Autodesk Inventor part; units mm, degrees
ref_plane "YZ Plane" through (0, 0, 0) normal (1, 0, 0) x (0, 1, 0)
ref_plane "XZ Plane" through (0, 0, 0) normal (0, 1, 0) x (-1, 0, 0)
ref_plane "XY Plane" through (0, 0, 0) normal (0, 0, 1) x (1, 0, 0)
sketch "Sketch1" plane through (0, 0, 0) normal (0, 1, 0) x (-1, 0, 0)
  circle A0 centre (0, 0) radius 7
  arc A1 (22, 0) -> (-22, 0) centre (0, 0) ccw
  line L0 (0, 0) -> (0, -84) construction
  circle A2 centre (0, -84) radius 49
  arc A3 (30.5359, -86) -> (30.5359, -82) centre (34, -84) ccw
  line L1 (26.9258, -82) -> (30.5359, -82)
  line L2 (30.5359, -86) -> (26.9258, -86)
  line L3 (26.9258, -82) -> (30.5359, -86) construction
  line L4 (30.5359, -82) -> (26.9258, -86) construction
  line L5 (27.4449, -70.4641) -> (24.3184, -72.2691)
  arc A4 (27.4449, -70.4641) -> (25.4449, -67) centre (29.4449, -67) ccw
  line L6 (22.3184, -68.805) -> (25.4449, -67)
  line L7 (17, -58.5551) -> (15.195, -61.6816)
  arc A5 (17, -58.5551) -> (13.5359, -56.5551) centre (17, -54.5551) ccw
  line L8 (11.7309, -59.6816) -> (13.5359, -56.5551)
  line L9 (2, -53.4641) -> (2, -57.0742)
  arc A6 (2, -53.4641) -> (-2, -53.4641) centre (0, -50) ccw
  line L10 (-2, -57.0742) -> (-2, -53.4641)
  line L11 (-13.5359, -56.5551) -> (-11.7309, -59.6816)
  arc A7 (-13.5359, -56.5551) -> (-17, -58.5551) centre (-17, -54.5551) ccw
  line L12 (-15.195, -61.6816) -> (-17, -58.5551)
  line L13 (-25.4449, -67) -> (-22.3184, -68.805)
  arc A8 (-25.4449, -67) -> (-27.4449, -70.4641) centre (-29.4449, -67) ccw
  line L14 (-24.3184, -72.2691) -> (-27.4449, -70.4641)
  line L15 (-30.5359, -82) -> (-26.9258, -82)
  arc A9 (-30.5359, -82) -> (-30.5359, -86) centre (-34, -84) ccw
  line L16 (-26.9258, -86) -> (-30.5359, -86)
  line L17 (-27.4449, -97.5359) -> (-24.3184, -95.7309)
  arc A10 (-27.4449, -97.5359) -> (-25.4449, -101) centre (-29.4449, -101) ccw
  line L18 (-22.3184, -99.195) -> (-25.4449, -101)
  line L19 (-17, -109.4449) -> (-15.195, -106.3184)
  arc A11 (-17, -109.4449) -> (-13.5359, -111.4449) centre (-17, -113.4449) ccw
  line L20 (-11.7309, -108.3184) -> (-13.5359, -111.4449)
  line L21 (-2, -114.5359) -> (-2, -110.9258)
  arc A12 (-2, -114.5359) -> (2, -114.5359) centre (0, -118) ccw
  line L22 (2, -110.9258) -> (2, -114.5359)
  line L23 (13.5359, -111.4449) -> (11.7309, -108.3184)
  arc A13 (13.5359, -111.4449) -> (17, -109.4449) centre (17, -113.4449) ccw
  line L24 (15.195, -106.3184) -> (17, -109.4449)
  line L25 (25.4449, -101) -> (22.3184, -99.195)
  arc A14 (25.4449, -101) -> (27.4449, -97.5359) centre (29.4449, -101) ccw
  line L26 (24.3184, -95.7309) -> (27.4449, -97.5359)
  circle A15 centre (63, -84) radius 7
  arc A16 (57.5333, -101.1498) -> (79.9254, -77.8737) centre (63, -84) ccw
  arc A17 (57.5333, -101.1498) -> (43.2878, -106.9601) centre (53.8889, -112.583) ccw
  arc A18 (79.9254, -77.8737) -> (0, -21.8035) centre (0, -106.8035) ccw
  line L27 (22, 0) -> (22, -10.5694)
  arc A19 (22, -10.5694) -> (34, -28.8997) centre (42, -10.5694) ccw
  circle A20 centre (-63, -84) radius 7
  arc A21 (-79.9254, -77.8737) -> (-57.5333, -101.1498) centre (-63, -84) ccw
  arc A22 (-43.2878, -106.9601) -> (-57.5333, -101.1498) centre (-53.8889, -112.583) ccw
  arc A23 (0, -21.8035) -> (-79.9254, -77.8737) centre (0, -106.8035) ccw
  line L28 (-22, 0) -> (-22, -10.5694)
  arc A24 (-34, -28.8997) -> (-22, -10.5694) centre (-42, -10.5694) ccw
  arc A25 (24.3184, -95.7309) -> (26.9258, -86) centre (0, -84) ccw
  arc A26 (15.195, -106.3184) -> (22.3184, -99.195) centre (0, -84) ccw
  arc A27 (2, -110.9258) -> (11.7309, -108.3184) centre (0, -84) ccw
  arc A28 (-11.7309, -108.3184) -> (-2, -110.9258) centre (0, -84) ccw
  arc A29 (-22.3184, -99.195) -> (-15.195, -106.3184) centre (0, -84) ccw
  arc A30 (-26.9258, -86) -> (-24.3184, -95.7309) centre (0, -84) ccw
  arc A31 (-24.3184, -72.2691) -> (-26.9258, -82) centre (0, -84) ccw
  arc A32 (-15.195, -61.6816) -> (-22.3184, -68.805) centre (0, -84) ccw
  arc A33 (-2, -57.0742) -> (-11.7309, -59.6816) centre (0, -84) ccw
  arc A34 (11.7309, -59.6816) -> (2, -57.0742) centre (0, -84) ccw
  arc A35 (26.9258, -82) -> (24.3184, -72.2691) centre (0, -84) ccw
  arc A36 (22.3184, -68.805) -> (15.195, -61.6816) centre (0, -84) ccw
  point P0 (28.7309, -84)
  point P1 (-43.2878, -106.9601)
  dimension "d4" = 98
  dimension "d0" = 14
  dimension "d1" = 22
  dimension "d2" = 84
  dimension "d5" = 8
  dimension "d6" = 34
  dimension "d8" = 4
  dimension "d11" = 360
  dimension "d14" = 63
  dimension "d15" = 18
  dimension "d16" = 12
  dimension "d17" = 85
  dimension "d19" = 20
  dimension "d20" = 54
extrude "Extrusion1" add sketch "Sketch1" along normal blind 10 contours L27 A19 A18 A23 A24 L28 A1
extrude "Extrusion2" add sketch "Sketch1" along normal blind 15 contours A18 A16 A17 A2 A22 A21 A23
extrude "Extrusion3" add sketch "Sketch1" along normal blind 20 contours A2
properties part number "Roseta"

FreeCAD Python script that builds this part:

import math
import FreeCAD as App
import Part
import Sketcher
from FreeCAD import Vector
Q = App.Units.Quantity

doc = App.newDocument("Part")
body = doc.addObject("PartDesign::Body", "Body")

sketch1 = body.newObject("Sketcher::SketchObject", "Sketch")
sketch1.AttachmentSupport = (doc.getObject("XZ_Plane"), [""])
sketch1.MapMode = "FlatFace"
sketch1.addGeometry([
    Part.LineSegment(Vector(-22, -11, 0), Vector(-22, 0, 0)),
    Part.ArcOfCircle(Part.Circle(Vector(0, 0, 0), Vector(0, 0, 1), 22), math.radians(0), math.radians(180)),
    Part.LineSegment(Vector(22, 0, 0), Vector(22, -11, 0)),
    Part.ArcOfCircle(Part.Circle(Vector(42, -11, 0), Vector(0, 0, 1), 20), math.radians(180), math.radians(246)),
    Part.ArcOfCircle(Part.Circle(Vector(0, -107, 0), Vector(0, 0, 1), 85), math.radians(66), math.radians(90)),
    Part.ArcOfCircle(Part.Circle(Vector(0, -107, 0), Vector(0, 0, 1), 85), math.radians(90), math.radians(114)),
    Part.ArcOfCircle(Part.Circle(Vector(-42, -11, 0), Vector(0, 0, 1), 20), math.radians(-66), math.radians(0)),
    Part.Circle(Vector(0, 0, 0), Vector(0, 0, 1), 7),
], False)
sketch1.addConstraint([
    Sketcher.Constraint("Tangent", 0, 2, 1, 2),
    Sketcher.Constraint("Tangent", 1, 1, 2, 1),
    Sketcher.Constraint("Tangent", 2, 2, 3, 1),
    Sketcher.Constraint("Tangent", 3, 2, 4, 1),
    Sketcher.Constraint("Tangent", 4, 2, 5, 1),
    Sketcher.Constraint("Tangent", 5, 2, 6, 1),
    Sketcher.Constraint("Tangent", 6, 2, 0, 1),
    Sketcher.Constraint("Vertical", 0),
    Sketcher.Constraint("Vertical", 2),
    Sketcher.Constraint("Coincident", 1, 3, -1, 1),
    Sketcher.Constraint("Coincident", 7, 3, -1, 1),
    Sketcher.Constraint("Equal", 4, 5),
    Sketcher.Constraint("Equal", 3, 6),
    Sketcher.Constraint("PointOnObject", 4, 3, -2),
    Sketcher.Constraint("PointOnObject", 4, 2, -2),
    Sketcher.Constraint("Diameter", 7, 14.0),
    Sketcher.Constraint("Radius", 1, 22.0),
    Sketcher.Constraint("Radius", 3, 20.0),
    Sketcher.Constraint("Radius", 4, 85.0),
    Sketcher.Constraint("DistanceY", 0, 1, 0, 2, 10.5694),
])
pad1 = body.newObject("PartDesign::Pad", "Pad")
pad1.Profile = sketch1
pad1.Length = 10
pad1.Reversed = True

sketch2 = body.newObject("Sketcher::SketchObject", "Sketch001")
sketch2.AttachmentSupport = (doc.getObject("XZ_Plane"), [""])
sketch2.MapMode = "FlatFace"
sketch2.addGeometry([
    Part.ArcOfCircle(Part.Circle(Vector(0, -107, 0), Vector(0, 0, 1), 85), math.radians(90), math.radians(160)),
    Part.ArcOfCircle(Part.Circle(Vector(0, -107, 0), Vector(0, 0, 1), 85), math.radians(20), math.radians(90)),
    Part.ArcOfCircle(Part.Circle(Vector(63, -84, 0), Vector(0, 0, 1), 18), math.radians(-108), math.radians(20)),
    Part.ArcOfCircle(Part.Circle(Vector(54, -113, 0), Vector(0, 0, 1), 12), math.radians(72), math.radians(152)),
    Part.ArcOfCircle(Part.Circle(Vector(0, -84, 0), Vector(0, 0, 1), 49), math.radians(-28), math.radians(208)),
    Part.ArcOfCircle(Part.Circle(Vector(-54, -113, 0), Vector(0, 0, 1), 12), math.radians(28), math.radians(108)),
    Part.ArcOfCircle(Part.Circle(Vector(-63, -84, 0), Vector(0, 0, 1), 18), math.radians(160), math.radians(288)),
    Part.Circle(Vector(63, -84, 0), Vector(0, 0, 1), 7),
    Part.Circle(Vector(-63, -84, 0), Vector(0, 0, 1), 7),
], False)
sketch2.addConstraint([
    Sketcher.Constraint("Tangent", 0, 1, 1, 2),
    Sketcher.Constraint("Tangent", 1, 1, 2, 2),
    Sketcher.Constraint("Tangent", 2, 1, 3, 1),
    Sketcher.Constraint("Tangent", 3, 2, 4, 1),
    Sketcher.Constraint("Tangent", 4, 2, 5, 1),
    Sketcher.Constraint("Tangent", 5, 2, 6, 2),
    Sketcher.Constraint("Tangent", 6, 1, 0, 2),
    Sketcher.Constraint("Coincident", 7, 3, 2, 3),
    Sketcher.Constraint("Coincident", 8, 3, 6, 3),
    Sketcher.Constraint("Equal", 0, 1),
    Sketcher.Constraint("Equal", 3, 5),
    Sketcher.Constraint("Equal", 2, 6),
    Sketcher.Constraint("Equal", 7, 8),
    Sketcher.Constraint("Symmetric", 3, 3, 5, 3, -2),
    Sketcher.Constraint("PointOnObject", 0, 3, -2),
    Sketcher.Constraint("PointOnObject", 0, 1, -2),
    Sketcher.Constraint("Horizontal", 2, 3, 4, 3),
    Sketcher.Constraint("Diameter", 7, 14.0),
    Sketcher.Constraint("Radius", 0, 85.0),
    Sketcher.Constraint("Radius", 2, 18.0),
    Sketcher.Constraint("Radius", 3, 12.0),
    Sketcher.Constraint("Radius", 4, 49.0),
    Sketcher.Constraint("DistanceX", -1, 1, 2, 3, 63.0),
    Sketcher.Constraint("DistanceY", 2, 3, -1, 1, 84.0),
])
pad2 = body.newObject("PartDesign::Pad", "Pad001")
pad2.Profile = sketch2
pad2.Length = 15
pad2.Reversed = True

sketch3 = body.newObject("Sketcher::SketchObject", "Sketch002")
sketch3.AttachmentSupport = (doc.getObject("XZ_Plane"), [""])
sketch3.MapMode = "FlatFace"
sketch3.addGeometry([
    Part.Circle(Vector(0, -84, 0), Vector(0, 0, 1), 49),
    Part.ArcOfCircle(Part.Circle(Vector(-34, -84, 0), Vector(0, 0, 1), 4), math.radians(30), math.radians(330)),
    Part.LineSegment(Vector(-30.5, -86, 0), Vector(-26.9, -86, 0)),
    Part.ArcOfCircle(Part.Circle(Vector(0, -84, 0), Vector(0, 0, 1), 27), math.radians(-176), math.radians(-154)),
    Part.LineSegment(Vector(-24.3, -95.7, 0), Vector(-27.4, -97.5, 0)),
    Part.ArcOfCircle(Part.Circle(Vector(-29.4, -101, 0), Vector(0, 0, 1), 4), math.radians(60), math.radians(360)),
    Part.LineSegment(Vector(-25.4, -101, 0), Vector(-22.3, -99.2, 0)),
    Part.ArcOfCircle(Part.Circle(Vector(0, -84, 0), Vector(0, 0, 1), 27), math.radians(-146), math.radians(-124)),
    Part.LineSegment(Vector(-15.2, -106.3, 0), Vector(-17, -109.4, 0)),
    Part.ArcOfCircle(Part.Circle(Vector(-17, -113.4, 0), Vector(0, 0, 1), 4), math.radians(90), math.radians(390)),
    Part.LineSegment(Vector(-13.5, -111.4, 0), Vector(-11.7, -108.3, 0)),
    Part.ArcOfCircle(Part.Circle(Vector(0, -84, 0), Vector(0, 0, 1), 27), math.radians(-116), math.radians(-94)),
    Part.LineSegment(Vector(-2, -110.9, 0), Vector(-2, -114.5, 0)),
    Part.ArcOfCircle(Part.Circle(Vector(0, -118, 0), Vector(0, 0, 1), 4), math.radians(120), math.radians(420)),
    Part.LineSegment(Vector(2, -114.5, 0), Vector(2, -110.9, 0)),
    Part.ArcOfCircle(Part.Circle(Vector(0, -84, 0), Vector(0, 0, 1), 27), math.radians(-86), math.radians(-64)),
    Part.LineSegment(Vector(11.7, -108.3, 0), Vector(13.5, -111.4, 0)),
    Part.ArcOfCircle(Part.Circle(Vector(17, -113.4, 0), Vector(0, 0, 1), 4), math.radians(150), math.radians(450)),
    Part.LineSegment(Vector(17, -109.4, 0), Vector(15.2, -106.3, 0)),
    Part.ArcOfCircle(Part.Circle(Vector(0, -84, 0), Vector(0, 0, 1), 27), math.radians(-56), math.radians(-34)),
    Part.LineSegment(Vector(22.3, -99.2, 0), Vector(25.4, -101, 0)),
    Part.ArcOfCircle(Part.Circle(Vector(29.4, -101, 0), Vector(0, 0, 1), 4), math.radians(180), math.radians(480)),
    Part.LineSegment(Vector(27.4, -97.5, 0), Vector(24.3, -95.7, 0)),
    Part.ArcOfCircle(Part.Circle(Vector(0, -84, 0), Vector(0, 0, 1), 27), math.radians(-26), math.radians(-4)),
    Part.LineSegment(Vector(26.9, -86, 0), Vector(30.5, -86, 0)),
    Part.ArcOfCircle(Part.Circle(Vector(34, -84, 0), Vector(0, 0, 1), 4), math.radians(-150), math.radians(150)),
    Part.LineSegment(Vector(30.5, -82, 0), Vector(26.9, -82, 0)),
    Part.ArcOfCircle(Part.Circle(Vector(0, -84, 0), Vector(0, 0, 1), 27), math.radians(4), math.radians(26)),
    Part.LineSegment(Vector(24.3, -72.3, 0), Vector(27.4, -70.5, 0)),
    Part.ArcOfCircle(Part.Circle(Vector(29.4, -67, 0), Vector(0, 0, 1), 4), math.radians(-120), math.radians(180)),
    Part.LineSegment(Vector(25.4, -67, 0), Vector(22.3, -68.8, 0)),
    Part.ArcOfCircle(Part.Circle(Vector(0, -84, 0), Vector(0, 0, 1), 27), math.radians(34), math.radians(56)),
    Part.LineSegment(Vector(15.2, -61.7, 0), Vector(17, -58.6, 0)),
    Part.ArcOfCircle(Part.Circle(Vector(17, -54.6, 0), Vector(0, 0, 1), 4), math.radians(-90), math.radians(210)),
    Part.LineSegment(Vector(13.5, -56.6, 0), Vector(11.7, -59.7, 0)),
    Part.ArcOfCircle(Part.Circle(Vector(0, -84, 0), Vector(0, 0, 1), 27), math.radians(64), math.radians(86)),
    Part.LineSegment(Vector(2, -57.1, 0), Vector(2, -53.5, 0)),
    Part.ArcOfCircle(Part.Circle(Vector(0, -50, 0), Vector(0, 0, 1), 4), math.radians(-60), math.radians(240)),
    Part.LineSegment(Vector(-2, -53.5, 0), Vector(-2, -57.1, 0)),
    Part.ArcOfCircle(Part.Circle(Vector(0, -84, 0), Vector(0, 0, 1), 27), math.radians(94), math.radians(116)),
    Part.LineSegment(Vector(-11.7, -59.7, 0), Vector(-13.5, -56.6, 0)),
    Part.ArcOfCircle(Part.Circle(Vector(-17, -54.6, 0), Vector(0, 0, 1), 4), math.radians(-30), math.radians(270)),
    Part.LineSegment(Vector(-17, -58.6, 0), Vector(-15.2, -61.7, 0)),
    Part.ArcOfCircle(Part.Circle(Vector(0, -84, 0), Vector(0, 0, 1), 27), math.radians(124), math.radians(146)),
    Part.LineSegment(Vector(-22.3, -68.8, 0), Vector(-25.4, -67, 0)),
    Part.ArcOfCircle(Part.Circle(Vector(-29.4, -67, 0), Vector(0, 0, 1), 4), math.radians(0), math.radians(300)),
    Part.LineSegment(Vector(-27.4, -70.5, 0), Vector(-24.3, -72.3, 0)),
    Part.ArcOfCircle(Part.Circle(Vector(0, -84, 0), Vector(0, 0, 1), 27), math.radians(154), math.radians(176)),
    Part.LineSegment(Vector(-26.9, -82, 0), Vector(-30.5, -82, 0)),
], False)
sketch3.addConstraint([
    Sketcher.Constraint("Coincident", 1, 2, 2, 1),
    Sketcher.Constraint("Coincident", 2, 2, 3, 1),
    Sketcher.Constraint("Coincident", 3, 2, 4, 1),
    Sketcher.Constraint("Coincident", 4, 2, 5, 1),
    Sketcher.Constraint("Coincident", 5, 2, 6, 1),
    Sketcher.Constraint("Coincident", 6, 2, 7, 1),
    Sketcher.Constraint("Coincident", 7, 2, 8, 1),
    Sketcher.Constraint("Coincident", 8, 2, 9, 1),
    Sketcher.Constraint("Coincident", 9, 2, 10, 1),
    Sketcher.Constraint("Coincident", 10, 2, 11, 1),
    Sketcher.Constraint("Coincident", 11, 2, 12, 1),
    Sketcher.Constraint("Coincident", 12, 2, 13, 1),
    Sketcher.Constraint("Coincident", 13, 2, 14, 1),
    Sketcher.Constraint("Coincident", 14, 2, 15, 1),
    Sketcher.Constraint("Coincident", 15, 2, 16, 1),
    Sketcher.Constraint("Coincident", 16, 2, 17, 1),
    Sketcher.Constraint("Coincident", 17, 2, 18, 1),
    Sketcher.Constraint("Coincident", 18, 2, 19, 1),
    Sketcher.Constraint("Coincident", 19, 2, 20, 1),
    Sketcher.Constraint("Coincident", 20, 2, 21, 1),
    Sketcher.Constraint("Coincident", 21, 2, 22, 1),
    Sketcher.Constraint("Coincident", 22, 2, 23, 1),
    Sketcher.Constraint("Coincident", 23, 2, 24, 1),
    Sketcher.Constraint("Coincident", 24, 2, 25, 1),
    Sketcher.Constraint("Coincident", 25, 2, 26, 1),
    Sketcher.Constraint("Coincident", 26, 2, 27, 1),
    Sketcher.Constraint("Coincident", 27, 2, 28, 1),
    Sketcher.Constraint("Coincident", 28, 2, 29, 1),
    Sketcher.Constraint("Coincident", 29, 2, 30, 1),
    Sketcher.Constraint("Coincident", 30, 2, 31, 1),
    Sketcher.Constraint("Coincident", 31, 2, 32, 1),
    Sketcher.Constraint("Coincident", 32, 2, 33, 1),
    Sketcher.Constraint("Coincident", 33, 2, 34, 1),
    Sketcher.Constraint("Coincident", 34, 2, 35, 1),
    Sketcher.Constraint("Coincident", 35, 2, 36, 1),
    Sketcher.Constraint("Coincident", 36, 2, 37, 1),
    Sketcher.Constraint("Coincident", 37, 2, 38, 1),
    Sketcher.Constraint("Coincident", 38, 2, 39, 1),
    Sketcher.Constraint("Coincident", 39, 2, 40, 1),
    Sketcher.Constraint("Coincident", 40, 2, 41, 1),
    Sketcher.Constraint("Coincident", 41, 2, 42, 1),
    Sketcher.Constraint("Coincident", 42, 2, 43, 1),
    Sketcher.Constraint("Coincident", 43, 2, 44, 1),
    Sketcher.Constraint("Coincident", 44, 2, 45, 1),
    Sketcher.Constraint("Coincident", 45, 2, 46, 1),
    Sketcher.Constraint("Coincident", 46, 2, 47, 1),
    Sketcher.Constraint("Coincident", 47, 2, 48, 1),
    Sketcher.Constraint("Coincident", 48, 2, 1, 1),
    Sketcher.Constraint("Horizontal", 2),
    Sketcher.Constraint("Vertical", 12),
    Sketcher.Constraint("Vertical", 14),
    Sketcher.Constraint("Horizontal", 24),
    Sketcher.Constraint("Horizontal", 26),
    Sketcher.Constraint("Vertical", 36),
    Sketcher.Constraint("Vertical", 38),
    Sketcher.Constraint("Horizontal", 48),
    Sketcher.Constraint("Coincident", 3, 3, 0, 3),
    Sketcher.Constraint("Coincident", 7, 3, 0, 3),
    Sketcher.Constraint("Coincident", 11, 3, 0, 3),
    Sketcher.Constraint("Coincident", 15, 3, 0, 3),
    Sketcher.Constraint("Coincident", 19, 3, 0, 3),
    Sketcher.Constraint("Coincident", 23, 3, 0, 3),
    Sketcher.Constraint("Coincident", 27, 3, 0, 3),
    Sketcher.Constraint("Coincident", 31, 3, 0, 3),
    Sketcher.Constraint("Coincident", 35, 3, 0, 3),
    Sketcher.Constraint("Coincident", 39, 3, 0, 3),
    Sketcher.Constraint("Coincident", 43, 3, 0, 3),
    Sketcher.Constraint("Coincident", 47, 3, 0, 3),
    Sketcher.Constraint("Equal", 1, 5),
    Sketcher.Constraint("Equal", 3, 7),
    Sketcher.Constraint("Equal", 5, 9),
    Sketcher.Constraint("Equal", 7, 11),
    Sketcher.Constraint("Equal", 9, 13),
    Sketcher.Constraint("Equal", 11, 15),
    Sketcher.Constraint("Equal", 13, 17),
    Sketcher.Constraint("Equal", 15, 19),
    Sketcher.Constraint("Equal", 17, 21),
    Sketcher.Constraint("Equal", 19, 23),
    Sketcher.Constraint("Equal", 21, 25),
    Sketcher.Constraint("Equal", 23, 27),
    Sketcher.Constraint("Equal", 25, 29),
    Sketcher.Constraint("Equal", 27, 31),
    Sketcher.Constraint("Equal", 29, 33),
    Sketcher.Constraint("Equal", 31, 35),
    Sketcher.Constraint("Equal", 33, 37),
    Sketcher.Constraint("Equal", 35, 39),
    Sketcher.Constraint("Equal", 37, 41),
    Sketcher.Constraint("Equal", 39, 43),
    Sketcher.Constraint("Equal", 41, 45),
    Sketcher.Constraint("Equal", 43, 47),
    Sketcher.Constraint("Symmetric", 9, 3, 17, 3, -2),
    Sketcher.Constraint("Symmetric", 5, 3, 21, 3, -2),
    Sketcher.Constraint("Symmetric", 1, 3, 25, 3, -2),
    Sketcher.Constraint("Symmetric", 33, 3, 41, 3, -2),
    Sketcher.Constraint("Symmetric", 29, 3, 45, 3, -2),
    Sketcher.Constraint("Symmetric", 12, 2, 13, 2, -2),
    Sketcher.Constraint("Symmetric", 10, 2, 15, 2, -2),
    Sketcher.Constraint("Symmetric", 36, 2, 37, 2, -2),
    Sketcher.Constraint("Parallel", 4, 6),
    Sketcher.Constraint("Parallel", 8, 10),
    Sketcher.Constraint("Perpendicular", 6, 16),
    Sketcher.Constraint("Parallel", 16, 18),
    Sketcher.Constraint("Perpendicular", 10, 20),
    Sketcher.Constraint("Parallel", 20, 22),
    Sketcher.Constraint("Perpendicular", 18, 28),
    Sketcher.Constraint("Parallel", 28, 30),
    Sketcher.Constraint("Perpendicular", 22, 32),
    Sketcher.Constraint("Parallel", 32, 34),
    Sketcher.Constraint("Perpendicular", 30, 40),
    Sketcher.Constraint("Parallel", 40, 42),
    Sketcher.Constraint("Perpendicular", 34, 44),
    Sketcher.Constraint("Parallel", 44, 46),
    Sketcher.Constraint("Horizontal", 0, 3, 1, 3),
    Sketcher.Constraint("Horizontal", 21, 3, 5, 2),
    Sketcher.Constraint("Horizontal", 9, 2, 16, 2),
    Sketcher.Constraint("Horizontal", 7, 2, 18, 2),
    Sketcher.Constraint("Horizontal", 6, 2, 19, 2),
    Sketcher.Constraint("Horizontal", 4, 2, 21, 2),
    Sketcher.Constraint("Horizontal", 2, 2, 23, 2),
    Sketcher.Constraint("Horizontal", 45, 3, 29, 2),
    Sketcher.Constraint("Horizontal", 34, 2, 39, 2),
    Sketcher.Constraint("Horizontal", 31, 2, 42, 2),
    Sketcher.Constraint("Horizontal", 30, 2, 43, 2),
    Sketcher.Constraint("Horizontal", 28, 2, 45, 2),
    Sketcher.Constraint("Horizontal", 26, 2, 47, 2),
    Sketcher.Constraint("Vertical", 21, 3, 29, 3),
    Sketcher.Constraint("Vertical", 17, 3, 33, 3),
    Sketcher.Constraint("Vertical", 41, 3, 8, 2),
    Sketcher.Constraint("Vertical", 24, 2, 25, 2),
    Sketcher.Constraint("Vertical", 22, 2, 27, 2),
    Sketcher.Constraint("Vertical", 21, 2, 28, 2),
    Sketcher.Constraint("Vertical", 18, 2, 31, 2),
    Sketcher.Constraint("Vertical", 17, 2, 32, 2),
    Sketcher.Constraint("Vertical", 16, 2, 33, 2),
    Sketcher.Constraint("Vertical", 14, 2, 35, 2),
    Sketcher.Constraint("Equal", 48, 12),
    Sketcher.Constraint("Equal", 14, 36),
    Sketcher.Constraint("Equal", 4, 6),
    Sketcher.Constraint("Equal", 6, 8),
    Sketcher.Constraint("Equal", 8, 10),
    Sketcher.Constraint("Diameter", 0, 98.0),
    Sketcher.Constraint("Radius", 1, 4.0),
    Sketcher.Constraint("Radius", 3, 27.0),
    Sketcher.Constraint("DistanceY", 0, 3, -1, 1, 84.0),
    Sketcher.Constraint("DistanceX", 1, 3, -1, 1, 34.0),
    Sketcher.Constraint("Angle", 4, Q("-150.0012 deg")),
    Sketcher.Constraint("DistanceY", 5, 3, -1, 1, 101.0),
    Sketcher.Constraint("DistanceX", 9, 3, -1, 1, 17.0),
    Sketcher.Constraint("DistanceY", 13, 3, -1, 1, 118.0),
    Sketcher.Constraint("DistanceY", 1, 2, -1, 1, 86.0),
    Sketcher.Constraint("DistanceX", 5, 3, -1, 1, 29.445),
])
pad3 = body.newObject("PartDesign::Pad", "Pad002")
pad3.Profile = sketch3
pad3.Length = 20
pad3.Reversed = True

doc.recompute()
